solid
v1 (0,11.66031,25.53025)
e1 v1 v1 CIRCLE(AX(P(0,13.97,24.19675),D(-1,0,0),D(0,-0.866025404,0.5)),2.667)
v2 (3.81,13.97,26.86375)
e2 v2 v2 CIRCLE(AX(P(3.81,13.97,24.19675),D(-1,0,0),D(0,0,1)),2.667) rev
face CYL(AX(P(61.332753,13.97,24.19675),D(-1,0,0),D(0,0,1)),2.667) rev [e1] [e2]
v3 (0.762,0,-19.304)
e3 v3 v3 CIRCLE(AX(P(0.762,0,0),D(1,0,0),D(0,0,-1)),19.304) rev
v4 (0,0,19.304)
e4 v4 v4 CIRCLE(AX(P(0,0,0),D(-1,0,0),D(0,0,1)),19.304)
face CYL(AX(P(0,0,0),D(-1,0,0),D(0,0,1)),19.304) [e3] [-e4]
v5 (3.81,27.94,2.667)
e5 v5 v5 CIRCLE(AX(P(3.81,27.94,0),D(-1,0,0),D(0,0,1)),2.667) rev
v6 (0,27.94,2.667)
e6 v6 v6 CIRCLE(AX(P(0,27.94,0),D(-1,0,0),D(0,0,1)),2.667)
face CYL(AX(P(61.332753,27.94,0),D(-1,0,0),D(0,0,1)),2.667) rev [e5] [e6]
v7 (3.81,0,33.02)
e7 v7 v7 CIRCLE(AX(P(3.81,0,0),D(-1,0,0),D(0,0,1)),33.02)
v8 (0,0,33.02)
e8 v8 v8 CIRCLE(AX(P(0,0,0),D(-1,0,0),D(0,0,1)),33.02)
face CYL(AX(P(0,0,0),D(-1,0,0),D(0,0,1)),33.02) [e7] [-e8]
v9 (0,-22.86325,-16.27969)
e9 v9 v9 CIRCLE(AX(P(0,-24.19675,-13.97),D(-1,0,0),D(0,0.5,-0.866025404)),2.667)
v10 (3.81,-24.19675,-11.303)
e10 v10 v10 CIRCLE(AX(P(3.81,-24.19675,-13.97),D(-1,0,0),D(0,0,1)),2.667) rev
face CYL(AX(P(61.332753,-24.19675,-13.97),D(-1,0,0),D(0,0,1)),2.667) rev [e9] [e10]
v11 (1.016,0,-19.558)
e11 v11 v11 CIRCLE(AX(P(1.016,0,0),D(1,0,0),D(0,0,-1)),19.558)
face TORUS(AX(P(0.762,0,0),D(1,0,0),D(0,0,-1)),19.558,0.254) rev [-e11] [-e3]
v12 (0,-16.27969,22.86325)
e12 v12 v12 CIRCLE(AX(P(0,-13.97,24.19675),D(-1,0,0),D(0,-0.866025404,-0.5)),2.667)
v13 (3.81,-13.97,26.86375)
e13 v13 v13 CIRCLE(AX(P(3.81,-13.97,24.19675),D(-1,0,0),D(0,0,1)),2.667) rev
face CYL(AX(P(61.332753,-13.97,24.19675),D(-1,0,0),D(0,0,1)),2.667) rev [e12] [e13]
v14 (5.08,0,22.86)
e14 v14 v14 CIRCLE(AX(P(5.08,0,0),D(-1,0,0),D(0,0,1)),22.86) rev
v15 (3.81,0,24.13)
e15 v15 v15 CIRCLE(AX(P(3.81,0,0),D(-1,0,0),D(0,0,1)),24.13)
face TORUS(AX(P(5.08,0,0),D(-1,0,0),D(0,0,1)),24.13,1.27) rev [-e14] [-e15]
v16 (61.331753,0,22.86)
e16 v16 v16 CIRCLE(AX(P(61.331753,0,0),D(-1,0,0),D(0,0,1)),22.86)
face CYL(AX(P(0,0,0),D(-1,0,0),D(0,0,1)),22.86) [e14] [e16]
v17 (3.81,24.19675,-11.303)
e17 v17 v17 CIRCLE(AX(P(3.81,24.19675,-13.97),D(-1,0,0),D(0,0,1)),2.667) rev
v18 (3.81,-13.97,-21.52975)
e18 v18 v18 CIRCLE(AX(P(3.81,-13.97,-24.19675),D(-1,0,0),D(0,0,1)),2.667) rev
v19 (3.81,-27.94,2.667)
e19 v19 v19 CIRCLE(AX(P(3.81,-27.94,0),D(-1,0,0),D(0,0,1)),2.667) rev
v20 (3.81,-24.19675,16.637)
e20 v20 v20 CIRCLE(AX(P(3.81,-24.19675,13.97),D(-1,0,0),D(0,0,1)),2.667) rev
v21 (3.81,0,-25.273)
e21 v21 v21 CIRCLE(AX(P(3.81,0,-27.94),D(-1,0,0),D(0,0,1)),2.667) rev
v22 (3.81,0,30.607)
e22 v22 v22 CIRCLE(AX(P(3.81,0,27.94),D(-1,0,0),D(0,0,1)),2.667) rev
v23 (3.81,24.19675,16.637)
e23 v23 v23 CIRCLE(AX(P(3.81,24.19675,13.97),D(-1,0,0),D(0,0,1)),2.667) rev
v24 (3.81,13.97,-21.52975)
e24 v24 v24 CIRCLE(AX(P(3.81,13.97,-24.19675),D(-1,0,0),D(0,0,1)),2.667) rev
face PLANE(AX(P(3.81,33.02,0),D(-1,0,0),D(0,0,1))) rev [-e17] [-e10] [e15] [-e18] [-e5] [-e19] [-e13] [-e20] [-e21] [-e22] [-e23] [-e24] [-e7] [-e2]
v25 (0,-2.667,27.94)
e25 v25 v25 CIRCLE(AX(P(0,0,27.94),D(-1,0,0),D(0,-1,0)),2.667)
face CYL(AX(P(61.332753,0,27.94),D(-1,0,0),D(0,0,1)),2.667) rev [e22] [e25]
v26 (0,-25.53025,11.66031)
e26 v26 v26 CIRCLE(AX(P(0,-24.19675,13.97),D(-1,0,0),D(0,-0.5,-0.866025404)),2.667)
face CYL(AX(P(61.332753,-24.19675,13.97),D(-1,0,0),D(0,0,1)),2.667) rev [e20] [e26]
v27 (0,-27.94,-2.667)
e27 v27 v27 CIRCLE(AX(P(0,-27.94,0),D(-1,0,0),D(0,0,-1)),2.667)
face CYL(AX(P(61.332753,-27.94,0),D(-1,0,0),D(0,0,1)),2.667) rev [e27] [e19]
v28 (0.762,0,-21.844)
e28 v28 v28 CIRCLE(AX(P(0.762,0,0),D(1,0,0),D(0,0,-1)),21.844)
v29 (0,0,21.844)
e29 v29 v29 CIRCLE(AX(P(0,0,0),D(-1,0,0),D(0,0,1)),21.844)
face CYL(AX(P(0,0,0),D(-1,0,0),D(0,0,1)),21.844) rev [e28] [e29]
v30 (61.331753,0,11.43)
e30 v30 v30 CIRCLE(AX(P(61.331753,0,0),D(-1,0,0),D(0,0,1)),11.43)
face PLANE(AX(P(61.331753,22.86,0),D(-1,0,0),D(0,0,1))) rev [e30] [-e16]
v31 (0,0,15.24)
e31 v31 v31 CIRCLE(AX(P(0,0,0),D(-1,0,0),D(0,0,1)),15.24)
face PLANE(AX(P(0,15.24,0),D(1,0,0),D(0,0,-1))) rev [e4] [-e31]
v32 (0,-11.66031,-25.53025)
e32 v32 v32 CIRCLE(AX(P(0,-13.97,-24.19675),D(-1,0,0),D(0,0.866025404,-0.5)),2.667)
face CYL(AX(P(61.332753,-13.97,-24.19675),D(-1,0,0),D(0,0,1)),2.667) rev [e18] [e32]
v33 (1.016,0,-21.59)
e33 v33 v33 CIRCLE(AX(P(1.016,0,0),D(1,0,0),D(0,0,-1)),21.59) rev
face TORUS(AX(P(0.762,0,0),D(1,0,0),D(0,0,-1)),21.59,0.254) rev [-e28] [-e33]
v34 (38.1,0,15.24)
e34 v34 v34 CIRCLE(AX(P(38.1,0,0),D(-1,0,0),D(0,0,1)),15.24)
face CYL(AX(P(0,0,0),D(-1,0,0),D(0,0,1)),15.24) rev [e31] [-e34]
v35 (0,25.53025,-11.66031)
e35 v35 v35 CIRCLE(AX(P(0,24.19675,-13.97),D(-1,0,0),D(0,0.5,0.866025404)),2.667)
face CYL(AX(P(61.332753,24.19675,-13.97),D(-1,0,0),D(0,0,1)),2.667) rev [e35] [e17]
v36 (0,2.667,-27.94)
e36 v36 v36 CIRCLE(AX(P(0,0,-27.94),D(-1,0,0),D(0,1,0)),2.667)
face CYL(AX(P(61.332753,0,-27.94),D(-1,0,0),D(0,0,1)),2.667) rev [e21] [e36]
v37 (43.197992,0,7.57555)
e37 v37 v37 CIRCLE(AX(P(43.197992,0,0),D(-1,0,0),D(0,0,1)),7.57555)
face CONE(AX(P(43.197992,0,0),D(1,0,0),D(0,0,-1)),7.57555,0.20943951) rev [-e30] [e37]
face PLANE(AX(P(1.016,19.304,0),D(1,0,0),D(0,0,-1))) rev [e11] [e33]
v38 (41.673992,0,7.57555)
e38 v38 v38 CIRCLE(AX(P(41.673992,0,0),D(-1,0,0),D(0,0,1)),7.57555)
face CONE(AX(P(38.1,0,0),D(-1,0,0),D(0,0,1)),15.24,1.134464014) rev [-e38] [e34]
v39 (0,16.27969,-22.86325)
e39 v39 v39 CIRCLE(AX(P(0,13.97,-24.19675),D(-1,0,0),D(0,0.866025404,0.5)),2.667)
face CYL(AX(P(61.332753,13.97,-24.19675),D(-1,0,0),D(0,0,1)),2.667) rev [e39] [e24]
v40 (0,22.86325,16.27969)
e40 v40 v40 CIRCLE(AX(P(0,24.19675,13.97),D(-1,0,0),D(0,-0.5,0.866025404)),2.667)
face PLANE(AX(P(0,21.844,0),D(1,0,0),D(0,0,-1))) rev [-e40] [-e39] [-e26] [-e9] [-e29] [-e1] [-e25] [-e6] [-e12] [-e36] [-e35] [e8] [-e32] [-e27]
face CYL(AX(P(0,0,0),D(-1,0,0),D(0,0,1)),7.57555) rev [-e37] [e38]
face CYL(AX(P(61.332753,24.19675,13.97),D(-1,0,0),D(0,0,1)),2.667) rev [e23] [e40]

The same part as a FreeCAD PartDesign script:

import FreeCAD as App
import Part
import Sketcher
Q = App.Units.Quantity


def edges_at(feature, points):
    """Names of the edges that pass closest to the given points."""
    edges = feature.Shape.Edges
    near = lambda p: min(range(len(edges)), key=lambda i: edges[i].distToShape(Part.Vertex(*p))[0])
    return sorted({f"Edge{near(p) + 1}" for p in points})


def add_polygon(sketch, points):
    """Adds a closed chain of lines whose ends are joined by coincident constraints."""
    first, n = sketch.GeometryCount, len(points)
    for a, b in zip(points, points[1:] + points[:1]):
        sketch.addGeometry(Part.LineSegment(App.Vector(*a, 0), App.Vector(*b, 0)), False)
    for i in range(n):
        sketch.addConstraint(Sketcher.Constraint("Coincident", first + i, 2, first + (i + 1) % n, 1))

doc = App.newDocument("Part")
params = doc.addObject("Spreadsheet::Sheet", "Params")
for row, (alias, value) in enumerate([
    ("sketch1_width", "1.5 in"),
    ("sketch1_height", "0.4 in"),
    ("sketch1_height2", "0.1 in"),
    ("sketch1_width2", "0.15 in"),
    ("sketch1_width3", "0.04 in"),
    ("revolution_angle", "360 deg"),
    ("fillet_radius", "0.05 in"),
    ("sketch2_diameter", "0.21 in"),
    ("pocket1_length", "0.15 in"),
    ("fillet2_radius", "0.01 in"),
], start=1):
    params.set(f"A{row}", alias)
    params.set(f"B{row}", "=" + value)
    params.setAlias(f"B{row}", alias)

body = doc.addObject("PartDesign::Body", "Body")

# Sketch on XY plane
sketch1 = body.newObject("Sketcher::SketchObject", "Sketch")
sketch1.AttachmentSupport = (doc.getObject("XY_Plane"), [""])
sketch1.MapMode = "FlatFace"
add_polygon(sketch1, [(61.3, 22.9), (3.8, 22.9), (3.8, 33), (0, 33), (0, 21.8), (1, 21.8), (1, 19.3), (0, 19.3), (0, 15.2), (38.1, 15.2), (41.7, 7.6), (43.2, 7.6), (61.3, 11.4)])  # lines 0-12
sketch1.addConstraint([
    Sketcher.Constraint("Horizontal", 0),
    Sketcher.Constraint("Vertical", 1),
    Sketcher.Constraint("Horizontal", 2),
    Sketcher.Constraint("Vertical", 3),
    Sketcher.Constraint("Horizontal", 4),
    Sketcher.Constraint("Vertical", 5),
    Sketcher.Constraint("Horizontal", 6),
    Sketcher.Constraint("Vertical", 7),
    Sketcher.Constraint("Horizontal", 8),
    Sketcher.Constraint("Horizontal", 10),
    Sketcher.Constraint("Vertical", 12),
    Sketcher.Constraint("PointOnObject", 2, 2, -2),
    Sketcher.Constraint("PointOnObject", 6, 2, -2),
    Sketcher.Constraint("DistanceX", 8, 1, 8, 2, Q("1.5 in")),
    Sketcher.Constraint("DistanceY", 1, 1, 1, 2, Q("0.4 in")),
    Sketcher.Constraint("DistanceY", 5, 2, 5, 1, Q("0.1 in")),
    Sketcher.Constraint("Angle", 9, Q("-65 deg")),
    Sketcher.Constraint("Angle", 11, Q("12 deg")),
    Sketcher.Constraint("DistanceX", 2, 2, 2, 1, Q("0.15 in")),
    Sketcher.Constraint("DistanceX", 4, 1, 4, 2, Q("0.04 in")),
    Sketcher.Constraint("DistanceX", 10, 1, 10, 2, Q("0.06 in")),
    Sketcher.Constraint("DistanceY", 3, 2, 3, 1, Q("0.44 in")),
    Sketcher.Constraint("DistanceY", 7, 2, 7, 1, Q("0.16 in")),
    Sketcher.Constraint("DistanceY", 12, 1, 12, 2, Q("0.45 in")),
    Sketcher.Constraint("DistanceY", -1, 1, 0, 2, Q("0.9 in")),
    Sketcher.Constraint("Distance", 11, 18.538881),
])
sketch1.setExpression("Constraints[26]", "Params.sketch1_width")
sketch1.setExpression("Constraints[27]", "Params.sketch1_height")
sketch1.setExpression("Constraints[28]", "Params.sketch1_height2")
sketch1.setExpression("Constraints[31]", "Params.sketch1_width2")
sketch1.setExpression("Constraints[32]", "Params.sketch1_width3")
revolution = body.newObject("PartDesign::Revolution", "Revolution")
revolution.Profile = sketch1
revolution.ReferenceAxis = (sketch1, ["H_Axis"])
revolution.setExpression("Angle", "Params.revolution_angle")
doc.recompute()

fillet = body.newObject("PartDesign::Fillet", "Fillet")
fillet.Base = (revolution, edges_at(revolution, [(3.81, -22.86, 0)]))
fillet.setExpression("Radius", "Params.fillet_radius")

# Sketch on YZ plane
sketch2 = body.newObject("Sketcher::SketchObject", "Sketch001")
sketch2.AttachmentSupport = (doc.getObject("YZ_Plane"), [""])
sketch2.MapMode = "FlatFace"
sketch2.addGeometry(Part.Circle(App.Vector(27.9, 0, 0), App.Vector(0, 0, 1), 2.7), False)
sketch2.addConstraint([
    Sketcher.Constraint("PointOnObject", 0, 3, -1),
    Sketcher.Constraint("Diameter", 0, Q("0.21 in")),
    Sketcher.Constraint("DistanceX", -1, 1, 0, 3, Q("1.1 in")),
])
sketch2.setExpression("Constraints[1]", "Params.sketch2_diameter")
pocket1 = body.newObject("PartDesign::Pocket", "Pocket")
pocket1.Profile = sketch2
pocket1.setExpression("Length", "Params.pocket1_length")
pocket1.Reversed = True
doc.recompute()

polarpattern = body.newObject("PartDesign::PolarPattern", "PolarPattern")
polarpattern.Originals = [pocket1]
polarpattern.Axis = (doc.getObject("X_Axis"), [""])
polarpattern.Angle = 360
polarpattern.Occurrences = 12
body.Tip = polarpattern
doc.recompute()

fillet2 = body.newObject("PartDesign::Fillet", "Fillet001")
fillet2.Base = (polarpattern, edges_at(polarpattern, [(1.016, -19.304, 0), (1.016, -21.844, 0)]))
fillet2.setExpression("Radius", "Params.fillet2_radius")

doc.recompute()
